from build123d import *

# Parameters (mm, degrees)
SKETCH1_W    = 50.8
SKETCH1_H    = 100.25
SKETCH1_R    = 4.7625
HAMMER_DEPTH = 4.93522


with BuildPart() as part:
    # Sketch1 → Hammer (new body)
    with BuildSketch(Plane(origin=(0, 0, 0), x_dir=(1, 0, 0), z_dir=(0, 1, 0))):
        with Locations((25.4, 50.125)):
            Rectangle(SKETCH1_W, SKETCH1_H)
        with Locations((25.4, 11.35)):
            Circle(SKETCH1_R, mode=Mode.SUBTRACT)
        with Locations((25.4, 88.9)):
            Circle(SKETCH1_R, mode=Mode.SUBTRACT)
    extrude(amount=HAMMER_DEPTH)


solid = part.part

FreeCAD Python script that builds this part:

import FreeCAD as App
import Part
import Sketcher

V = App.Vector
Q = App.Units.Quantity


def add_polygon(sketch, points):
    """Adds a closed chain of lines whose ends are joined by coincident constraints."""
    first, n = sketch.GeometryCount, len(points)
    for a, b in zip(points, points[1:] + points[:1]):
        sketch.addGeometry(Part.LineSegment(App.Vector(*a, 0), App.Vector(*b, 0)), False)
    for i in range(n):
        sketch.addConstraint(Sketcher.Constraint("Coincident", first + i, 2, first + (i + 1) % n, 1))

doc = App.newDocument("Part")
body = doc.addObject("PartDesign::Body", "Body")

# Sketch on XZ plane
sketch1 = body.newObject("Sketcher::SketchObject", "Sketch")
sketch1.AttachmentSupport = (doc.getObject("XZ_Plane"), [""])
sketch1.MapMode = "FlatFace"
add_polygon(sketch1, [(0, -100.25), (0, 0), (50.8, 0), (50.8, -100.25)])  # lines 0-3
sketch1.addGeometry(Part.Circle(V(25.4, -11.35, 0), V(0, 0, 1), 4.7625), False)  # 4
sketch1.addGeometry(Part.Circle(V(25.4, -88.9, 0), V(0, 0, 1), 4.7625), False)  # 5
sketch1.addConstraint(Sketcher.Constraint("Vertical", 0))
sketch1.addConstraint(Sketcher.Constraint("Horizontal", 1))
sketch1.addConstraint(Sketcher.Constraint("Vertical", 2))
sketch1.addConstraint(Sketcher.Constraint("Horizontal", 3))
sketch1.addConstraint(Sketcher.Constraint("Coincident", 0, 2, -1, 1))
sketch1.addConstraint(Sketcher.Constraint("Equal", 4, 5))
sketch1.addConstraint(Sketcher.Constraint("Vertical", 4, 3, 5, 3))
sketch1.addConstraint(Sketcher.Constraint("DistanceX", 1, 1, 1, 2, Q("2 in")))
sketch1.addConstraint(Sketcher.Constraint("Diameter", 4, Q("0.375 in")))
sketch1.addConstraint(Sketcher.Constraint("DistanceX", -1, 1, 4, 3, Q("1 in")))
sketch1.addConstraint(Sketcher.Constraint("DistanceY", 5, 3, -1, 1, Q("3.5 in")))
sketch1.addConstraint(Sketcher.Constraint("DistanceY", 2, 2, 4, 3, Q("3.5 in")))
sketch1.addConstraint(Sketcher.Constraint("DistanceY", 0, 1, 0, 2, 100.25))
pad1 = body.newObject("PartDesign::Pad", "Pad")
pad1.Profile = sketch1
pad1.Length = Q("0.1943 in")
pad1.Reversed = True

doc.recompute()
